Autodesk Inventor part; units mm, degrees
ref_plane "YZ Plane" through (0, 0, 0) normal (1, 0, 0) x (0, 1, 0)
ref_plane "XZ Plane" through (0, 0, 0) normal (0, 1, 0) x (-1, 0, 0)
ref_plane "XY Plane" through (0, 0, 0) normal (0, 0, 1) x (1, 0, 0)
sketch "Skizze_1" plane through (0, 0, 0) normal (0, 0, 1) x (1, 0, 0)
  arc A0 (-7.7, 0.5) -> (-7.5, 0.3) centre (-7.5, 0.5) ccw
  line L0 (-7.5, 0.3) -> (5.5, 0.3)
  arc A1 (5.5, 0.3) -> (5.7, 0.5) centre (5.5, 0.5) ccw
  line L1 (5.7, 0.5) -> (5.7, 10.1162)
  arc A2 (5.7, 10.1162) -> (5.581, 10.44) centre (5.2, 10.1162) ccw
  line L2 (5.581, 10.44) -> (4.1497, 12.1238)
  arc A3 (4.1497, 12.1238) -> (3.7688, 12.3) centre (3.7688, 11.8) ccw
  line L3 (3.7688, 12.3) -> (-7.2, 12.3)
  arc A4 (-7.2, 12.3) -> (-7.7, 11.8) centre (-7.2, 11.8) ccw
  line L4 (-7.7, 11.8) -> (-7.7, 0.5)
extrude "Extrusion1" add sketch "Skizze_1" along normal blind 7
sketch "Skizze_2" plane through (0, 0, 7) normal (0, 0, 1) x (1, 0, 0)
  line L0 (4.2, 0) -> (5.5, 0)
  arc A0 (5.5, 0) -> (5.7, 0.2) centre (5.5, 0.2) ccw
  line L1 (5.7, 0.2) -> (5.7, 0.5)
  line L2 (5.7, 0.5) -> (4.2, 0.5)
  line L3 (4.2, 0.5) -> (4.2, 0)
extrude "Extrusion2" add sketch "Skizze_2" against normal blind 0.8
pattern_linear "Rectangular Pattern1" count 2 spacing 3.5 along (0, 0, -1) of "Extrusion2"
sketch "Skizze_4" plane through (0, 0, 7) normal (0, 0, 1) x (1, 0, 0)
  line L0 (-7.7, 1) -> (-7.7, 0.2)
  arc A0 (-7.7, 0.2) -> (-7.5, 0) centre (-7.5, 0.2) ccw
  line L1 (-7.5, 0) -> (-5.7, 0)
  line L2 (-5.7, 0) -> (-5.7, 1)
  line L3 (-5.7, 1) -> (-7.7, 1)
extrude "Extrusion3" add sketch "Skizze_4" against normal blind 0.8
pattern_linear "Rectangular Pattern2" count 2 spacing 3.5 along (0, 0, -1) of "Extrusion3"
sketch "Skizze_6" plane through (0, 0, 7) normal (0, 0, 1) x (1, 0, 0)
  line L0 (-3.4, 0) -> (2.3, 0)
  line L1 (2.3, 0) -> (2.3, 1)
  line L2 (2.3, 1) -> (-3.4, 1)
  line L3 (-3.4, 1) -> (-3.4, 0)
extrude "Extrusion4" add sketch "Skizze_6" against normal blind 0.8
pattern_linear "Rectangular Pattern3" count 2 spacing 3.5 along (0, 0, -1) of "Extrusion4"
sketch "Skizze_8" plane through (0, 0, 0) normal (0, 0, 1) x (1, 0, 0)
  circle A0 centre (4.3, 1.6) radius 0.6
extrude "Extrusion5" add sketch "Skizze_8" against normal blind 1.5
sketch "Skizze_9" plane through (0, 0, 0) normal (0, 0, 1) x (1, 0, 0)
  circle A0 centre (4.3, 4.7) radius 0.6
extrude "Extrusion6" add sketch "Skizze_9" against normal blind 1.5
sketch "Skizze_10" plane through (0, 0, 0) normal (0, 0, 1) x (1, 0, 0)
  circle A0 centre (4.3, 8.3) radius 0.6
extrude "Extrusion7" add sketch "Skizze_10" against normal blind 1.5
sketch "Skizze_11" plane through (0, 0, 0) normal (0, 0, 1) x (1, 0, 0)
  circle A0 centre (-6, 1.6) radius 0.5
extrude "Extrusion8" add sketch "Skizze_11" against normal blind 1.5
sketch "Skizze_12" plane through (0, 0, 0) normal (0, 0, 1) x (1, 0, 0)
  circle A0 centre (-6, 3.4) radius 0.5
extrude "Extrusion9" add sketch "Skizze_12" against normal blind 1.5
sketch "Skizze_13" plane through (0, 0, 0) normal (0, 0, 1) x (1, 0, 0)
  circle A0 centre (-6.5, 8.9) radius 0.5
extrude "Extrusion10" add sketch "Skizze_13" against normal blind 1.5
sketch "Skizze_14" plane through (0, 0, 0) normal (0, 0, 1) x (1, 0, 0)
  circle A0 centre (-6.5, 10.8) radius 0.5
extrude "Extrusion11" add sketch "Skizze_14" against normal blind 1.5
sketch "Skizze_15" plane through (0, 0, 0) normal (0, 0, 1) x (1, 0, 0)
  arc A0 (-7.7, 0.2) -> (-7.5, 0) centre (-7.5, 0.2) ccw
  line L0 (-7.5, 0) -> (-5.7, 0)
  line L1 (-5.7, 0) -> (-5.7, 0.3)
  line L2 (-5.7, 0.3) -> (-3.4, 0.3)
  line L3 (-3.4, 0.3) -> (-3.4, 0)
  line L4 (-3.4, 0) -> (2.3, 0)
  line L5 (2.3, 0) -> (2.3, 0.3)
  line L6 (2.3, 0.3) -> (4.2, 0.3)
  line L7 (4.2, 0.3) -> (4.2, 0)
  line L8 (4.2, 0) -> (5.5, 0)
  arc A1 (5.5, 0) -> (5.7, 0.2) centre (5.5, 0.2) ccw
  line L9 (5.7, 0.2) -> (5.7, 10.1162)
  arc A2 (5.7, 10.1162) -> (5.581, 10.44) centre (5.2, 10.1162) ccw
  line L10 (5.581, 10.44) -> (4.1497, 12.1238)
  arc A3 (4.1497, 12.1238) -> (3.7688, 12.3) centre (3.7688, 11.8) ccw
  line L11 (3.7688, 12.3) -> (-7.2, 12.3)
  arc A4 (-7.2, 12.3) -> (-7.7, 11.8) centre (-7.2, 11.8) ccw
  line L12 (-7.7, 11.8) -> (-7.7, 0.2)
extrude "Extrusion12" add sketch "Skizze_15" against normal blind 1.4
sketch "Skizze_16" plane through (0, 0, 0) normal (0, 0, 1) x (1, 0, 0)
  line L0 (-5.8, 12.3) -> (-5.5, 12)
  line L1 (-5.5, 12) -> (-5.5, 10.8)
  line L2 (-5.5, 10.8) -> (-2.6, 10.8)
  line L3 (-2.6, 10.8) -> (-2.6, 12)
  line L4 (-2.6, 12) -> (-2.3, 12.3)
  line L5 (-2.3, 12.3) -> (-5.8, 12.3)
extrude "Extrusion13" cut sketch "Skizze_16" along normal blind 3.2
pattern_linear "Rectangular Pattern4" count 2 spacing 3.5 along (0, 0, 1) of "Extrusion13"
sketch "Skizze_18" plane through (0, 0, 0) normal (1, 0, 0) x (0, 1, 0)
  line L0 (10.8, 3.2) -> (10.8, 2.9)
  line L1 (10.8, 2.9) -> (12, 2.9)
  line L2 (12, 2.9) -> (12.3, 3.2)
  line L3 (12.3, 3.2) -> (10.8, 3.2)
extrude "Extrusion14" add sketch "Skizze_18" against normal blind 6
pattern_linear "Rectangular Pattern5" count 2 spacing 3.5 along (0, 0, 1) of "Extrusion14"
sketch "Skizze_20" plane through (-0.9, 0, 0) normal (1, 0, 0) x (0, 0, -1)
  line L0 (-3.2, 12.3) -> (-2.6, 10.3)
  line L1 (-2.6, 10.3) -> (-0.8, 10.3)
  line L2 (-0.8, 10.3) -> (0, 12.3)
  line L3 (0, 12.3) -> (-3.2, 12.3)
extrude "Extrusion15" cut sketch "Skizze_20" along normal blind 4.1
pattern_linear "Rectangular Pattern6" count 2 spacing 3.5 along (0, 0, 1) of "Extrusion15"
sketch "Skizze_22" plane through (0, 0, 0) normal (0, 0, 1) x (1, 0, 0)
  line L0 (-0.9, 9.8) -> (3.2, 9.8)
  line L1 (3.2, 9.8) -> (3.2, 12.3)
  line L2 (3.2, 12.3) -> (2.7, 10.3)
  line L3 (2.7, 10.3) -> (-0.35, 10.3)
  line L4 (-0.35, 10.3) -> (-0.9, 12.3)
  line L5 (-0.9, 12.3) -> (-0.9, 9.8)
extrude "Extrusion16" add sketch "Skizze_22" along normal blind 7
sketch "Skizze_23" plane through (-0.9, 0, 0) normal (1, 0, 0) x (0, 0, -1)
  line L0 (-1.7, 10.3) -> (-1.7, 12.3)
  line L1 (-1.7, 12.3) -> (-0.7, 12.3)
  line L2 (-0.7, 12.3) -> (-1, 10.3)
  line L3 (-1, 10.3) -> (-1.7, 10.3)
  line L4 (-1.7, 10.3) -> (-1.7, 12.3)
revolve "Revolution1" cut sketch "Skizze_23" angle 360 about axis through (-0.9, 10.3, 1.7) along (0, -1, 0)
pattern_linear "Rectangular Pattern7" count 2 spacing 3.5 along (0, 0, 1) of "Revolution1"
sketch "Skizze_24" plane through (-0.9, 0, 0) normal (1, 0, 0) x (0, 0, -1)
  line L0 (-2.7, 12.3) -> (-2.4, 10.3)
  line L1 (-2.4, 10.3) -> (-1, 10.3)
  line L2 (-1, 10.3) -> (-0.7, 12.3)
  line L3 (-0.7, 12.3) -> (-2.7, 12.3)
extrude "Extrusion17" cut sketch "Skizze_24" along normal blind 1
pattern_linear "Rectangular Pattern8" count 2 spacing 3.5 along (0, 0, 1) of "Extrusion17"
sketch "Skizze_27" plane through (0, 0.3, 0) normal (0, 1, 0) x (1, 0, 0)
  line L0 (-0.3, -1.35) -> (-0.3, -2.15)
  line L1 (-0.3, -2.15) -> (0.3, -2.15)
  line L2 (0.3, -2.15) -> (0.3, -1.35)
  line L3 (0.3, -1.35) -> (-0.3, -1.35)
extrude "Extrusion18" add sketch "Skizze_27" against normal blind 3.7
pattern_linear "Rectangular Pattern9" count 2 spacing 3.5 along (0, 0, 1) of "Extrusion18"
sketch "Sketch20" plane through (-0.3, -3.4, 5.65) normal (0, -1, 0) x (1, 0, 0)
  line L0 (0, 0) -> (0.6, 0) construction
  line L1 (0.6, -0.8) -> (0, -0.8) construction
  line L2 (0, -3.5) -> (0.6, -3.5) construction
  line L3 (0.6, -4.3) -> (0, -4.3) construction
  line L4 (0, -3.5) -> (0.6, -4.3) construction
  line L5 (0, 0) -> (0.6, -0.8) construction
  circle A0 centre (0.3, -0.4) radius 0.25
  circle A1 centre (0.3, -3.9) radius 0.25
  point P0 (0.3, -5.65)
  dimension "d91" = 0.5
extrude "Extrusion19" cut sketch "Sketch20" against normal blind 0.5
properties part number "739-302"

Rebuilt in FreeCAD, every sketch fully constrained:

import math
import FreeCAD as App
import Part
import Sketcher
from FreeCAD import Vector
Q = App.Units.Quantity

doc = App.newDocument("Part")
body = doc.addObject("PartDesign::Body", "Body")

# Sketch on XY plane
sketch1 = body.newObject("Sketcher::SketchObject", "Sketch")
sketch1.AttachmentSupport = (doc.getObject("XY_Plane"), [""])
sketch1.MapMode = "FlatFace"
sketch1.addGeometry([
    Part.LineSegment(Vector(-7.7, 11.8, 0), Vector(-7.7, 0.5, 0)),  # 0
    Part.ArcOfCircle(Part.Circle(Vector(-7.5, 0.5, 0), Vector(0, 0, 1), 0.2), math.radians(180), math.radians(270)),  # 1
    Part.LineSegment(Vector(-7.5, 0.3, 0), Vector(5.5, 0.3, 0)),  # 2
    Part.ArcOfCircle(Part.Circle(Vector(5.5, 0.5, 0), Vector(0, 0, 1), 0.2), math.radians(-90), math.radians(0)),  # 3
    Part.LineSegment(Vector(5.7, 0.5, 0), Vector(5.7, 10.1162, 0)),  # 4
    Part.ArcOfCircle(Part.Circle(Vector(5.2, 10.1162, 0), Vector(0, 0, 1), 0.5), math.radians(0), math.radians(40.360171)),  # 5
    Part.LineSegment(Vector(5.581, 10.44, 0), Vector(4.1497, 12.1238, 0)),  # 6
    Part.ArcOfCircle(Part.Circle(Vector(3.7688, 11.8, 0), Vector(0, 0, 1), 0.499931), math.radians(40.367593), math.radians(90)),  # 7
    Part.LineSegment(Vector(3.7688, 12.3, 0), Vector(-7.2, 12.3, 0)),  # 8
    Part.ArcOfCircle(Part.Circle(Vector(-7.2, 11.8, 0), Vector(0, 0, 1), 0.5), math.radians(90), math.radians(180)),  # 9
], False)
sketch1.addConstraint([
    Sketcher.Constraint("Tangent", 0, 2, 1, 1),
    Sketcher.Constraint("Tangent", 1, 2, 2, 1),
    Sketcher.Constraint("Tangent", 2, 2, 3, 1),
    Sketcher.Constraint("Tangent", 3, 2, 4, 1),
    Sketcher.Constraint("Tangent", 4, 2, 5, 1),
    Sketcher.Constraint("Tangent", 5, 2, 6, 1),
    Sketcher.Constraint("Tangent", 6, 2, 7, 1),
    Sketcher.Constraint("Tangent", 7, 2, 8, 1),
    Sketcher.Constraint("Tangent", 8, 2, 9, 1),
    Sketcher.Constraint("Tangent", 9, 2, 0, 1),
    Sketcher.Constraint("Vertical", 0),
    Sketcher.Constraint("Horizontal", 2),
    Sketcher.Constraint("Vertical", 4),
    Sketcher.Constraint("Horizontal", 8),
    Sketcher.Constraint("Equal", 1, 3),
    Sketcher.Constraint("Equal", 5, 7),
    Sketcher.Constraint("Equal", 7, 9),
    Sketcher.Constraint("Radius", 1, Q("0.2 mm")),
    Sketcher.Constraint("Radius", 5, Q("0.5 mm")),
    Sketcher.Constraint("DistanceX", 2, 1, 2, 2, Q("13 mm")),
    Sketcher.Constraint("DistanceY", 0, 2, 0, 1, Q("11.3 mm")),
    Sketcher.Constraint("DistanceX", 1, 3, -1, 1, Q("7.5 mm")),
    Sketcher.Constraint("DistanceY", -1, 1, 1, 3, Q("0.5 mm")),
    Sketcher.Constraint("Distance", 6, Q("2.21 mm")),
    Sketcher.Constraint("DistanceY", -1, 1, 5, 2, Q("10.44 mm")),
])
pad1 = body.newObject("PartDesign::Pad", "Pad")
pad1.Profile = sketch1
pad1.Length = 7

# Sketch on XY plane
sketch2 = body.newObject("Sketcher::SketchObject", "Sketch001")
sketch2.AttachmentSupport = (doc.getObject("XY_Plane"), [""])
sketch2.MapMode = "FlatFace"
sketch2.AttachmentOffset = App.Placement(Vector(0, 0, 7), App.Rotation())
sketch2.addGeometry([
    Part.LineSegment(Vector(4.2, 0.5, 0), Vector(4.2, 0, 0)),  # 0
    Part.LineSegment(Vector(4.2, 0, 0), Vector(5.5, 0, 0)),  # 1
    Part.ArcOfCircle(Part.Circle(Vector(5.5, 0.2, 0), Vector(0, 0, 1), 0.2), math.radians(-90), math.radians(0)),  # 2
    Part.LineSegment(Vector(5.7, 0.2, 0), Vector(5.7, 0.5, 0)),  # 3
    Part.LineSegment(Vector(5.7, 0.5, 0), Vector(4.2, 0.5, 0)),  # 4
], False)
sketch2.addConstraint([
    Sketcher.Constraint("Coincident", 0, 2, 1, 1),
    Sketcher.Constraint("Tangent", 1, 2, 2, 1),
    Sketcher.Constraint("Tangent", 2, 2, 3, 1),
    Sketcher.Constraint("Coincident", 3, 2, 4, 1),
    Sketcher.Constraint("Coincident", 4, 2, 0, 1),
    Sketcher.Constraint("Vertical", 0),
    Sketcher.Constraint("Horizontal", 1),
    Sketcher.Constraint("Vertical", 3),
    Sketcher.Constraint("Horizontal", 4),
    Sketcher.Constraint("PointOnObject", 0, 2, -1),
    Sketcher.Constraint("Radius", 2, Q("0.2 mm")),
    Sketcher.Constraint("DistanceX", 1, 1, 1, 2, Q("1.3 mm")),
    Sketcher.Constraint("DistanceY", 0, 2, 0, 1, Q("0.5 mm")),
    Sketcher.Constraint("DistanceX", -1, 1, 2, 3, Q("5.5 mm")),
])
pad2 = body.newObject("PartDesign::Pad", "Pad001")
pad2.Profile = sketch2
pad2.Length = 0.8
pad2.Reversed = True
doc.recompute()

linearpattern = body.newObject("PartDesign::LinearPattern", "LinearPattern")
linearpattern.Originals = [pad2]
linearpattern.Direction = (doc.getObject("Z_Axis"), [""])
linearpattern.Mode = "offset"
linearpattern.Offset = 3.5
linearpattern.Occurrences = 2
linearpattern.Reversed = True
body.Tip = linearpattern

# Sketch on XY plane
sketch3 = body.newObject("Sketcher::SketchObject", "Sketch002")
sketch3.AttachmentSupport = (doc.getObject("XY_Plane"), [""])
sketch3.MapMode = "FlatFace"
sketch3.AttachmentOffset = App.Placement(Vector(0, 0, 7), App.Rotation())
sketch3.addGeometry([
    Part.LineSegment(Vector(-5.7, 1, 0), Vector(-7.7, 1, 0)),  # 0
    Part.LineSegment(Vector(-7.7, 1, 0), Vector(-7.7, 0.2, 0)),  # 1
    Part.ArcOfCircle(Part.Circle(Vector(-7.5, 0.2, 0), Vector(0, 0, 1), 0.2), math.radians(180), math.radians(270)),  # 2
    Part.LineSegment(Vector(-7.5, 0, 0), Vector(-5.7, 0, 0)),  # 3
    Part.LineSegment(Vector(-5.7, 0, 0), Vector(-5.7, 1, 0)),  # 4
], False)
sketch3.addConstraint([
    Sketcher.Constraint("Coincident", 0, 2, 1, 1),
    Sketcher.Constraint("Tangent", 1, 2, 2, 1),
    Sketcher.Constraint("Tangent", 2, 2, 3, 1),
    Sketcher.Constraint("Coincident", 3, 2, 4, 1),
    Sketcher.Constraint("Coincident", 4, 2, 0, 1),
    Sketcher.Constraint("Horizontal", 0),
    Sketcher.Constraint("Vertical", 1),
    Sketcher.Constraint("Horizontal", 3),
    Sketcher.Constraint("Vertical", 4),
    Sketcher.Constraint("PointOnObject", 2, 2, -1),
    Sketcher.Constraint("Radius", 2, Q("0.2 mm")),
    Sketcher.Constraint("DistanceX", 0, 2, 0, 1, Q("2 mm")),
    Sketcher.Constraint("DistanceY", 4, 1, 4, 2, Q("1 mm")),
    Sketcher.Constraint("DistanceX", 2, 3, -1, 1, Q("7.5 mm")),
])
pad3 = body.newObject("PartDesign::Pad", "Pad002")
pad3.Profile = sketch3
pad3.Length = 0.8
pad3.Reversed = True
doc.recompute()

linearpattern2 = body.newObject("PartDesign::LinearPattern", "LinearPattern001")
linearpattern2.Originals = [pad3]
linearpattern2.Direction = (doc.getObject("Z_Axis"), [""])
linearpattern2.Mode = "offset"
linearpattern2.Offset = 3.5
linearpattern2.Occurrences = 2
linearpattern2.Reversed = True
body.Tip = linearpattern2

# Sketch on XY plane
sketch4 = body.newObject("Sketcher::SketchObject", "Sketch003")
sketch4.AttachmentSupport = (doc.getObject("XY_Plane"), [""])
sketch4.MapMode = "FlatFace"
sketch4.AttachmentOffset = App.Placement(Vector(0, 0, 7), App.Rotation())
sketch4.addGeometry([
    Part.LineSegment(Vector(-3.4, 1, 0), Vector(-3.4, 0, 0)),
    Part.LineSegment(Vector(-3.4, 0, 0), Vector(2.3, 0, 0)),
    Part.LineSegment(Vector(2.3, 0, 0), Vector(2.3, 1, 0)),
    Part.LineSegment(Vector(2.3, 1, 0), Vector(-3.4, 1, 0)),
], False)
sketch4.addConstraint([
    Sketcher.Constraint("Coincident", 0, 2, 1, 1),
    Sketcher.Constraint("Coincident", 1, 2, 2, 1),
    Sketcher.Constraint("Coincident", 2, 2, 3, 1),
    Sketcher.Constraint("Coincident", 3, 2, 0, 1),
    Sketcher.Constraint("Vertical", 0),
    Sketcher.Constraint("Horizontal", 1),
    Sketcher.Constraint("Vertical", 2),
    Sketcher.Constraint("Horizontal", 3),
    Sketcher.Constraint("PointOnObject", 0, 2, -1),
    Sketcher.Constraint("DistanceY", 0, 2, 0, 1, Q("1 mm")),
    Sketcher.Constraint("DistanceX", 1, 1, 1, 2, Q("5.7 mm")),
    Sketcher.Constraint("DistanceX", 0, 2, -1, 1, Q("3.4 mm")),
])
pad4 = body.newObject("PartDesign::Pad", "Pad003")
pad4.Profile = sketch4
pad4.Length = 0.8
pad4.Reversed = True
doc.recompute()

linearpattern3 = body.newObject("PartDesign::LinearPattern", "LinearPattern002")
linearpattern3.Originals = [pad4]
linearpattern3.Direction = (doc.getObject("Z_Axis"), [""])
linearpattern3.Mode = "offset"
linearpattern3.Offset = 3.5
linearpattern3.Occurrences = 2
linearpattern3.Reversed = True
body.Tip = linearpattern3

# Sketch on XY plane
sketch5 = body.newObject("Sketcher::SketchObject", "Sketch004")
sketch5.AttachmentSupport = (doc.getObject("XY_Plane"), [""])
sketch5.MapMode = "FlatFace"
sketch5.addGeometry(Part.Circle(Vector(4.3, 1.6, 0), Vector(0, 0, 1), 0.6), False)
sketch5.addConstraint([
    Sketcher.Constraint("Diameter", 0, Q("1.2 mm")),
    Sketcher.Constraint("DistanceX", -1, 1, 0, 3, Q("4.3 mm")),
    Sketcher.Constraint("DistanceY", -1, 1, 0, 3, Q("1.6 mm")),
])
pad5 = body.newObject("PartDesign::Pad", "Pad004")
pad5.Profile = sketch5
pad5.Length = 1.5
pad5.Reversed = True

# Sketch on XY plane
sketch6 = body.newObject("Sketcher::SketchObject", "Sketch005")
sketch6.AttachmentSupport = (doc.getObject("XY_Plane"), [""])
sketch6.MapMode = "FlatFace"
sketch6.addGeometry(Part.Circle(Vector(4.3, 4.7, 0), Vector(0, 0, 1), 0.6), False)
sketch6.addConstraint([
    Sketcher.Constraint("Diameter", 0, Q("1.2 mm")),
    Sketcher.Constraint("DistanceX", -1, 1, 0, 3, Q("4.3 mm")),
    Sketcher.Constraint("DistanceY", -1, 1, 0, 3, Q("4.7 mm")),
])
pad6 = body.newObject("PartDesign::Pad", "Pad005")
pad6.Profile = sketch6
pad6.Length = 1.5
pad6.Reversed = True

# Sketch on XY plane
sketch7 = body.newObject("Sketcher::SketchObject", "Sketch006")
sketch7.AttachmentSupport = (doc.getObject("XY_Plane"), [""])
sketch7.MapMode = "FlatFace"
sketch7.addGeometry(Part.Circle(Vector(4.3, 8.3, 0), Vector(0, 0, 1), 0.6), False)
sketch7.addConstraint([
    Sketcher.Constraint("Diameter", 0, Q("1.2 mm")),
    Sketcher.Constraint("DistanceX", -1, 1, 0, 3, Q("4.3 mm")),
    Sketcher.Constraint("DistanceY", -1, 1, 0, 3, Q("8.3 mm")),
])
pad7 = body.newObject("PartDesign::Pad", "Pad006")
pad7.Profile = sketch7
pad7.Length = 1.5
pad7.Reversed = True

# Sketch on XY plane
sketch8 = body.newObject("Sketcher::SketchObject", "Sketch007")
sketch8.AttachmentSupport = (doc.getObject("XY_Plane"), [""])
sketch8.MapMode = "FlatFace"
sketch8.addGeometry(Part.Circle(Vector(-6, 1.6, 0), Vector(0, 0, 1), 0.5), False)
sketch8.addConstraint([
    Sketcher.Constraint("Diameter", 0, Q("1 mm")),
    Sketcher.Constraint("DistanceX", 0, 3, -1, 1, Q("6 mm")),
    Sketcher.Constraint("DistanceY", -1, 1, 0, 3, Q("1.6 mm")),
])
pad8 = body.newObject("PartDesign::Pad", "Pad007")
pad8.Profile = sketch8
pad8.Length = 1.5
pad8.Reversed = True

# Sketch on XY plane
sketch9 = body.newObject("Sketcher::SketchObject", "Sketch008")
sketch9.AttachmentSupport = (doc.getObject("XY_Plane"), [""])
sketch9.MapMode = "FlatFace"
sketch9.addGeometry(Part.Circle(Vector(-6, 3.4, 0), Vector(0, 0, 1), 0.5), False)
sketch9.addConstraint([
    Sketcher.Constraint("Diameter", 0, Q("1 mm")),
    Sketcher.Constraint("DistanceX", 0, 3, -1, 1, Q("6 mm")),
    Sketcher.Constraint("DistanceY", -1, 1, 0, 3, Q("3.4 mm")),
])
pad9 = body.newObject("PartDesign::Pad", "Pad008")
pad9.Profile = sketch9
pad9.Length = 1.5
pad9.Reversed = True

# Sketch on XY plane
sketch10 = body.newObject("Sketcher::SketchObject", "Sketch009")
sketch10.AttachmentSupport = (doc.getObject("XY_Plane"), [""])
sketch10.MapMode = "FlatFace"
sketch10.addGeometry(Part.Circle(Vector(-6.5, 8.9, 0), Vector(0, 0, 1), 0.5), False)
sketch10.addConstraint([
    Sketcher.Constraint("Diameter", 0, Q("1 mm")),
    Sketcher.Constraint("DistanceX", 0, 3, -1, 1, Q("6.5 mm")),
    Sketcher.Constraint("DistanceY", -1, 1, 0, 3, Q("8.9 mm")),
])
pad10 = body.newObject("PartDesign::Pad", "Pad009")
pad10.Profile = sketch10
pad10.Length = 1.5
pad10.Reversed = True

# Sketch on XY plane
sketch11 = body.newObject("Sketcher::SketchObject", "Sketch010")
sketch11.AttachmentSupport = (doc.getObject("XY_Plane"), [""])
sketch11.MapMode = "FlatFace"
sketch11.addGeometry(Part.Circle(Vector(-6.5, 10.8, 0), Vector(0, 0, 1), 0.5), False)
sketch11.addConstraint([
    Sketcher.Constraint("Diameter", 0, Q("1 mm")),
    Sketcher.Constraint("DistanceX", 0, 3, -1, 1, Q("6.5 mm")),
    Sketcher.Constraint("DistanceY", -1, 1, 0, 3, Q("10.8 mm")),
])
pad11 = body.newObject("PartDesign::Pad", "Pad010")
pad11.Profile = sketch11
pad11.Length = 1.5
pad11.Reversed = True

# Sketch on XY plane
sketch12 = body.newObject("Sketcher::SketchObject", "Sketch011")
sketch12.AttachmentSupport = (doc.getObject("XY_Plane"), [""])
sketch12.MapMode = "FlatFace"
sketch12.addGeometry([
    Part.LineSegment(Vector(-7.7, 11.8, 0), Vector(-7.7, 0.2, 0)),  # 0
    Part.ArcOfCircle(Part.Circle(Vector(-7.5, 0.2, 0), Vector(0, 0, 1), 0.2), math.radians(180), math.radians(270)),  # 1
    Part.LineSegment(Vector(-7.5, 0, 0), Vector(-5.7, 0, 0)),  # 2
    Part.LineSegment(Vector(-5.7, 0, 0), Vector(-5.7, 0.3, 0)),  # 3
    Part.LineSegment(Vector(-5.7, 0.3, 0), Vector(-3.4, 0.3, 0)),  # 4
    Part.LineSegment(Vector(-3.4, 0.3, 0), Vector(-3.4, 0, 0)),  # 5
    Part.LineSegment(Vector(-3.4, 0, 0), Vector(2.3, 0, 0)),  # 6
    Part.LineSegment(Vector(2.3, 0, 0), Vector(2.3, 0.3, 0)),  # 7
    Part.LineSegment(Vector(2.3, 0.3, 0), Vector(4.2, 0.3, 0)),  # 8
    Part.LineSegment(Vector(4.2, 0.3, 0), Vector(4.2, 0, 0)),  # 9
    Part.LineSegment(Vector(4.2, 0, 0), Vector(5.5, 0, 0)),  # 10
    Part.ArcOfCircle(Part.Circle(Vector(5.5, 0.2, 0), Vector(0, 0, 1), 0.2), math.radians(-90), math.radians(0)),  # 11
    Part.LineSegment(Vector(5.7, 0.2, 0), Vector(5.7, 10.1162, 0)),  # 12
    Part.ArcOfCircle(Part.Circle(Vector(5.2, 10.1162, 0), Vector(0, 0, 1), 0.5), math.radians(0), math.radians(40.360171)),  # 13
    Part.LineSegment(Vector(5.581, 10.44, 0), Vector(4.1497, 12.1238, 0)),  # 14
    Part.ArcOfCircle(Part.Circle(Vector(3.7688, 11.8, 0), Vector(0, 0, 1), 0.499931), math.radians(40.367593), math.radians(90)),  # 15
    Part.LineSegment(Vector(3.7688, 12.3, 0), Vector(-7.2, 12.3, 0)),  # 16
    Part.ArcOfCircle(Part.Circle(Vector(-7.2, 11.8, 0), Vector(0, 0, 1), 0.5), math.radians(90), math.radians(180)),  # 17
], False)
sketch12.addConstraint([
    Sketcher.Constraint("Tangent", 0, 2, 1, 1),
    Sketcher.Constraint("Tangent", 1, 2, 2, 1),
    Sketcher.Constraint("Coincident", 2, 2, 3, 1),
    Sketcher.Constraint("Coincident", 3, 2, 4, 1),
    Sketcher.Constraint("Coincident", 4, 2, 5, 1),
    Sketcher.Constraint("Coincident", 5, 2, 6, 1),
    Sketcher.Constraint("Coincident", 6, 2, 7, 1),
    Sketcher.Constraint("Coincident", 7, 2, 8, 1),
    Sketcher.Constraint("Coincident", 8, 2, 9, 1),
    Sketcher.Constraint("Coincident", 9, 2, 10, 1),
    Sketcher.Constraint("Tangent", 10, 2, 11, 1),
    Sketcher.Constraint("Tangent", 11, 2, 12, 1),
    Sketcher.Constraint("Tangent", 12, 2, 13, 1),
    Sketcher.Constraint("Tangent", 13, 2, 14, 1),
    Sketcher.Constraint("Tangent", 14, 2, 15, 1),
    Sketcher.Constraint("Tangent", 15, 2, 16, 1),
    Sketcher.Constraint("Tangent", 16, 2, 17, 1),
    Sketcher.Constraint("Tangent", 17, 2, 0, 1),
    Sketcher.Constraint("Vertical", 0),
    Sketcher.Constraint("Horizontal", 2),
    Sketcher.Constraint("Vertical", 3),
    Sketcher.Constraint("Horizontal", 4),
    Sketcher.Constraint("Vertical", 5),
    Sketcher.Constraint("Horizontal", 6),
    Sketcher.Constraint("Vertical", 7),
    Sketcher.Constraint("Horizontal", 8),
    Sketcher.Constraint("Vertical", 9),
    Sketcher.Constraint("Horizontal", 10),
    Sketcher.Constraint("Vertical", 12),
    Sketcher.Constraint("Horizontal", 16),
    Sketcher.Constraint("Equal", 1, 11),
    Sketcher.Constraint("Equal", 13, 15),
    Sketcher.Constraint("Equal", 15, 17),
    Sketcher.Constraint("PointOnObject", 1, 2, -1),
    Sketcher.Constraint("PointOnObject", 5, 2, -1),
    Sketcher.Constraint("PointOnObject", 9, 2, -1),
    Sketcher.Constraint("Horizontal", 4, 2, 7, 2),
    Sketcher.Constraint("Radius", 1, Q("0.2 mm")),
    Sketcher.Constraint("Radius", 13, Q("0.5 mm")),
    Sketcher.Constraint("DistanceX", 2, 1, 2, 2, Q("1.8 mm")),
    Sketcher.Constraint("DistanceX", 4, 1, 4, 2, Q("2.3 mm")),
    Sketcher.Constraint("DistanceX", 6, 1, 6, 2, Q("5.7 mm")),
    Sketcher.Constraint("DistanceX", 8, 1, 8, 2, Q("1.9 mm")),
    Sketcher.Constraint("DistanceX", 10, 1, 10, 2, Q("1.3 mm")),
    Sketcher.Constraint("DistanceY", 0, 2, 0, 1, Q("11.6 mm")),
    Sketcher.Constraint("DistanceY", 3, 1, 3, 2, Q("0.3 mm")),
    Sketcher.Constraint("DistanceX", 1, 3, -1, 1, Q("7.5 mm")),
    Sketcher.Constraint("Distance", 14, Q("2.21 mm")),
    Sketcher.Constraint("DistanceY", -1, 1, 13, 2, Q("10.44 mm")),
])
pad12 = body.newObject("PartDesign::Pad", "Pad011")
pad12.Profile = sketch12
pad12.Length = 1.4
pad12.Reversed = True

# Sketch on XY plane
sketch13 = body.newObject("Sketcher::SketchObject", "Sketch012")
sketch13.AttachmentSupport = (doc.getObject("XY_Plane"), [""])
sketch13.MapMode = "FlatFace"
sketch13.addGeometry([
    Part.LineSegment(Vector(-2.3, 12.3, 0), Vector(-5.8, 12.3, 0)),  # 0
    Part.LineSegment(Vector(-5.8, 12.3, 0), Vector(-5.5, 12, 0)),  # 1
    Part.LineSegment(Vector(-5.5, 12, 0), Vector(-5.5, 10.8, 0)),  # 2
    Part.LineSegment(Vector(-5.5, 10.8, 0), Vector(-2.6, 10.8, 0)),  # 3
    Part.LineSegment(Vector(-2.6, 10.8, 0), Vector(-2.6, 12, 0)),  # 4
    Part.LineSegment(Vector(-2.6, 12, 0), Vector(-2.3, 12.3, 0)),  # 5
], False)
sketch13.addConstraint([
    Sketcher.Constraint("Coincident", 0, 2, 1, 1),
    Sketcher.Constraint("Coincident", 1, 2, 2, 1),
    Sketcher.Constraint("Coincident", 2, 2, 3, 1),
    Sketcher.Constraint("Coincident", 3, 2, 4, 1),
    Sketcher.Constraint("Coincident", 4, 2, 5, 1),
    Sketcher.Constraint("Coincident", 5, 2, 0, 1),
    Sketcher.Constraint("Horizontal", 0),
    Sketcher.Constraint("Vertical", 2),
    Sketcher.Constraint("Horizontal", 3),
    Sketcher.Constraint("Vertical", 4),
    Sketcher.Constraint("Perpendicular", 1, 5),
    Sketcher.Constraint("Horizontal", 1, 2, 4, 2),
    Sketcher.Constraint("Equal", 1, 5),
    Sketcher.Constraint("DistanceX", 0, 2, 0, 1, Q("3.5 mm")),
    Sketcher.Constraint("DistanceX", 3, 1, 3, 2, Q("2.9 mm")),
    Sketcher.Constraint("DistanceY", 2, 2, 2, 1, Q("1.2 mm")),
    Sketcher.Constraint("DistanceY", -1, 1, 1, 2, Q("12 mm")),
    Sketcher.Constraint("DistanceX", 0, 2, -1, 1, Q("5.8 mm")),
])
pocket1 = body.newObject("PartDesign::Pocket", "Pocket")
pocket1.Profile = sketch13
pocket1.Length = 3.2
pocket1.Reversed = True
doc.recompute()

linearpattern4 = body.newObject("PartDesign::LinearPattern", "LinearPattern003")
linearpattern4.Originals = [pocket1]
linearpattern4.Direction = (doc.getObject("Z_Axis"), [""])
linearpattern4.Mode = "offset"
linearpattern4.Offset = 3.5
linearpattern4.Occurrences = 2
body.Tip = linearpattern4

# Sketch on YZ plane
sketch14 = body.newObject("Sketcher::SketchObject", "Sketch013")
sketch14.AttachmentSupport = (doc.getObject("YZ_Plane"), [""])
sketch14.MapMode = "FlatFace"
sketch14.addGeometry([
    Part.LineSegment(Vector(12.3, 3.2, 0), Vector(10.8, 3.2, 0)),
    Part.LineSegment(Vector(10.8, 3.2, 0), Vector(10.8, 2.9, 0)),
    Part.LineSegment(Vector(10.8, 2.9, 0), Vector(12, 2.9, 0)),
    Part.LineSegment(Vector(12, 2.9, 0), Vector(12.3, 3.2, 0)),
], False)
sketch14.addConstraint([
    Sketcher.Constraint("Coincident", 0, 2, 1, 1),
    Sketcher.Constraint("Coincident", 1, 2, 2, 1),
    Sketcher.Constraint("Coincident", 2, 2, 3, 1),
    Sketcher.Constraint("Coincident", 3, 2, 0, 1),
    Sketcher.Constraint("Horizontal", 0),
    Sketcher.Constraint("Vertical", 1),
    Sketcher.Constraint("Horizontal", 2),
    Sketcher.Constraint("Angle", 3, Q("45 deg")),
    Sketcher.Constraint("DistanceX", 0, 2, 0, 1, Q("1.5 mm")),
    Sketcher.Constraint("DistanceX", 2, 1, 2, 2, Q("1.2 mm")),
    Sketcher.Constraint("DistanceX", -1, 1, 2, 2, Q("12 mm")),
    Sketcher.Constraint("DistanceY", -1, 1, 0, 2, Q("3.2 mm")),
])
pad13 = body.newObject("PartDesign::Pad", "Pad012")
pad13.Profile = sketch14
pad13.Length = 6
pad13.Reversed = True
doc.recompute()

linearpattern5 = body.newObject("PartDesign::LinearPattern", "LinearPattern004")
linearpattern5.Originals = [pad13]
linearpattern5.Direction = (doc.getObject("Z_Axis"), [""])
linearpattern5.Mode = "offset"
linearpattern5.Offset = 3.5
linearpattern5.Occurrences = 2
body.Tip = linearpattern5

# Sketch on YZ plane
sketch15 = body.newObject("Sketcher::SketchObject", "Sketch014")
sketch15.AttachmentSupport = (doc.getObject("YZ_Plane"), [""])
sketch15.MapMode = "FlatFace"
sketch15.AttachmentOffset = App.Placement(Vector(0, 0, -0.9), App.Rotation())
sketch15.addGeometry([
    Part.LineSegment(Vector(12.3, 0, 0), Vector(12.3, 3.2, 0)),
    Part.LineSegment(Vector(12.3, 3.2, 0), Vector(10.3, 2.6, 0)),
    Part.LineSegment(Vector(10.3, 2.6, 0), Vector(10.3, 0.8, 0)),
    Part.LineSegment(Vector(10.3, 0.8, 0), Vector(12.3, 0, 0)),
], False)
sketch15.addConstraint([
    Sketcher.Constraint("Coincident", 0, 2, 1, 1),
    Sketcher.Constraint("Coincident", 1, 2, 2, 1),
    Sketcher.Constraint("Coincident", 2, 2, 3, 1),
    Sketcher.Constraint("Coincident", 3, 2, 0, 1),
    Sketcher.Constraint("Vertical", 0),
    Sketcher.Constraint("Vertical", 2),
    Sketcher.Constraint("PointOnObject", 3, 2, -1),
    Sketcher.Constraint("DistanceY", 0, 1, 0, 2, Q("3.2 mm")),
    Sketcher.Constraint("DistanceY", 2, 2, 2, 1, Q("1.8 mm")),
    Sketcher.Constraint("Angle", 1, Q("-163.3008 deg")),
    Sketcher.Constraint("DistanceX", 1, 2, 0, 2, Q("2 mm")),
    Sketcher.Constraint("DistanceX", -1, 1, 0, 2, Q("12.3 mm")),
])
pocket2 = body.newObject("PartDesign::Pocket", "Pocket001")
pocket2.Profile = sketch15
pocket2.Length = 4.1
pocket2.Reversed = True
doc.recompute()

linearpattern6 = body.newObject("PartDesign::LinearPattern", "LinearPattern005")
linearpattern6.Originals = [pocket2]
linearpattern6.Direction = (doc.getObject("Z_Axis"), [""])
linearpattern6.Mode = "offset"
linearpattern6.Offset = 3.5
linearpattern6.Occurrences = 2
body.Tip = linearpattern6

# Sketch on XY plane
sketch16 = body.newObject("Sketcher::SketchObject", "Sketch015")
sketch16.AttachmentSupport = (doc.getObject("XY_Plane"), [""])
sketch16.MapMode = "FlatFace"
sketch16.addGeometry([
    Part.LineSegment(Vector(-0.9, 12.3, 0), Vector(-0.9, 9.8, 0)),  # 0
    Part.LineSegment(Vector(-0.9, 9.8, 0), Vector(3.2, 9.8, 0)),  # 1
    Part.LineSegment(Vector(3.2, 9.8, 0), Vector(3.2, 12.3, 0)),  # 2
    Part.LineSegment(Vector(3.2, 12.3, 0), Vector(2.7, 10.3, 0)),  # 3
    Part.LineSegment(Vector(2.7, 10.3, 0), Vector(-0.35, 10.3, 0)),  # 4
    Part.LineSegment(Vector(-0.35, 10.3, 0), Vector(-0.9, 12.3, 0)),  # 5
], False)
sketch16.addConstraint([
    Sketcher.Constraint("Coincident", 0, 2, 1, 1),
    Sketcher.Constraint("Coincident", 1, 2, 2, 1),
    Sketcher.Constraint("Coincident", 2, 2, 3, 1),
    Sketcher.Constraint("Coincident", 3, 2, 4, 1),
    Sketcher.Constraint("Coincident", 4, 2, 5, 1),
    Sketcher.Constraint("Coincident", 5, 2, 0, 1),
    Sketcher.Constraint("Vertical", 0),
    Sketcher.Constraint("Horizontal", 1),
    Sketcher.Constraint("Vertical", 2),
    Sketcher.Constraint("Horizontal", 4),
    Sketcher.Constraint("Horizontal", 2, 2, 5, 2),
    Sketcher.Constraint("DistanceX", 1, 1, 1, 2, Q("4.1 mm")),
    Sketcher.Constraint("DistanceY", 0, 2, 0, 1, Q("2.5 mm")),
    Sketcher.Constraint("DistanceY", 3, 2, 2, 2, Q("2 mm")),
    Sketcher.Constraint("DistanceX", 4, 2, 4, 1, Q("3.05 mm")),
    Sketcher.Constraint("DistanceX", 0, 2, -1, 1, Q("0.9 mm")),
    Sketcher.Constraint("DistanceY", -1, 1, 0, 2, Q("9.8 mm")),
    Sketcher.Constraint("DistanceX", -1, 1, 3, 2, Q("2.7 mm")),
])
pad14 = body.newObject("PartDesign::Pad", "Pad013")
pad14.Profile = sketch16
pad14.Length = 7

# Sketch on YZ plane
sketch17 = body.newObject("Sketcher::SketchObject", "Sketch016")
sketch17.AttachmentSupport = (doc.getObject("YZ_Plane"), [""])
sketch17.MapMode = "FlatFace"
sketch17.AttachmentOffset = App.Placement(Vector(0, 0, -0.9), App.Rotation())
sketch17.addGeometry([
    Part.LineSegment(Vector(12.3, 1.7, 0), Vector(10.3, 1.7, 0)),
    Part.LineSegment(Vector(10.3, 1.7, 0), Vector(10.3, 1, 0)),
    Part.LineSegment(Vector(10.3, 1, 0), Vector(12.3, 0.7, 0)),
    Part.LineSegment(Vector(12.3, 0.7, 0), Vector(12.3, 1.7, 0)),
], False)
sketch17.addGeometry(Part.LineSegment(Vector(12.3, 1.7, 0), Vector(10.3, 1.7, 0)), True)  # axis
sketch17.addConstraint([
    Sketcher.Constraint("Coincident", 0, 2, 1, 1),
    Sketcher.Constraint("Coincident", 1, 2, 2, 1),
    Sketcher.Constraint("Coincident", 2, 2, 3, 1),
    Sketcher.Constraint("Coincident", 3, 2, 0, 1),
    Sketcher.Constraint("Horizontal", 0),
    Sketcher.Constraint("Vertical", 1),
    Sketcher.Constraint("Vertical", 3),
    Sketcher.Constraint("Horizontal", 4),
    Sketcher.Constraint("Coincident", 4, 1, 3, 2),
    Sketcher.Constraint("Vertical", 1, 2, 4, 2),
    Sketcher.Constraint("DistanceX", 0, 2, 0, 1, Q("2 mm")),
    Sketcher.Constraint("DistanceY", 3, 1, 3, 2, Q("1 mm")),
    Sketcher.Constraint("DistanceY", 1, 2, 1, 1, Q("0.7 mm")),
    Sketcher.Constraint("DistanceY", -1, 1, 1, 2, Q("1 mm")),
    Sketcher.Constraint("DistanceX", -1, 1, 0, 2, Q("10.3 mm")),
])
groove = body.newObject("PartDesign::Groove", "Groove")
groove.Profile = sketch17
groove.ReferenceAxis = (sketch17, ["Axis0"])
groove.Angle = 360
doc.recompute()

linearpattern7 = body.newObject("PartDesign::LinearPattern", "LinearPattern006")
linearpattern7.Originals = [groove]
linearpattern7.Direction = (doc.getObject("Z_Axis"), [""])
linearpattern7.Mode = "offset"
linearpattern7.Offset = 3.5
linearpattern7.Occurrences = 2
body.Tip = linearpattern7

# Sketch on YZ plane
sketch18 = body.newObject("Sketcher::SketchObject", "Sketch017")
sketch18.AttachmentSupport = (doc.getObject("YZ_Plane"), [""])
sketch18.MapMode = "FlatFace"
sketch18.AttachmentOffset = App.Placement(Vector(0, 0, -0.9), App.Rotation())
sketch18.addGeometry([
    Part.LineSegment(Vector(12.3, 0.7, 0), Vector(12.3, 2.7, 0)),
    Part.LineSegment(Vector(12.3, 2.7, 0), Vector(10.3, 2.4, 0)),
    Part.LineSegment(Vector(10.3, 2.4, 0), Vector(10.3, 1, 0)),
    Part.LineSegment(Vector(10.3, 1, 0), Vector(12.3, 0.7, 0)),
], False)
sketch18.addConstraint([
    Sketcher.Constraint("Coincident", 0, 2, 1, 1),
    Sketcher.Constraint("Coincident", 1, 2, 2, 1),
    Sketcher.Constraint("Coincident", 2, 2, 3, 1),
    Sketcher.Constraint("Coincident", 3, 2, 0, 1),
    Sketcher.Constraint("Vertical", 0),
    Sketcher.Constraint("Vertical", 2),
    Sketcher.Constraint("Equal", 1, 3),
    Sketcher.Constraint("DistanceY", 0, 1, 0, 2, Q("2 mm")),
    Sketcher.Constraint("DistanceY", 2, 2, 2, 1, Q("1.4 mm")),
    Sketcher.Constraint("DistanceY", -1, 1, 2, 2, Q("1 mm")),
    Sketcher.Constraint("DistanceX", 1, 2, 0, 2, Q("2 mm")),
    Sketcher.Constraint("DistanceX", -1, 1, 0, 2, Q("12.3 mm")),
])
pocket3 = body.newObject("PartDesign::Pocket", "Pocket002")
pocket3.Profile = sketch18
pocket3.Length = 1
pocket3.Reversed = True
doc.recompute()

linearpattern8 = body.newObject("PartDesign::LinearPattern", "LinearPattern007")
linearpattern8.Originals = [pocket3]
linearpattern8.Direction = (doc.getObject("Z_Axis"), [""])
linearpattern8.Mode = "offset"
linearpattern8.Offset = 3.5
linearpattern8.Occurrences = 2
body.Tip = linearpattern8

# Sketch on XZ plane
sketch19 = body.newObject("Sketcher::SketchObject", "Sketch018")
sketch19.AttachmentSupport = (doc.getObject("XZ_Plane"), [""])
sketch19.MapMode = "FlatFace"
sketch19.AttachmentOffset = App.Placement(Vector(0, 0, -0.3), App.Rotation())
sketch19.addGeometry([
    Part.LineSegment(Vector(0.3, 1.35, 0), Vector(-0.3, 1.35, 0)),
    Part.LineSegment(Vector(-0.3, 1.35, 0), Vector(-0.3, 2.15, 0)),
    Part.LineSegment(Vector(-0.3, 2.15, 0), Vector(0.3, 2.15, 0)),
    Part.LineSegment(Vector(0.3, 2.15, 0), Vector(0.3, 1.35, 0)),
], False)
sketch19.addConstraint([
    Sketcher.Constraint("Coincident", 0, 2, 1, 1),
    Sketcher.Constraint("Coincident", 1, 2, 2, 1),
    Sketcher.Constraint("Coincident", 2, 2, 3, 1),
    Sketcher.Constraint("Coincident", 3, 2, 0, 1),
    Sketcher.Constraint("Horizontal", 0),
    Sketcher.Constraint("Vertical", 1),
    Sketcher.Constraint("Horizontal", 2),
    Sketcher.Constraint("Vertical", 3),
    Sketcher.Constraint("DistanceX", 0, 2, 0, 1, Q("0.6 mm")),
    Sketcher.Constraint("DistanceY", 1, 1, 1, 2, Q("0.8 mm")),
    Sketcher.Constraint("DistanceX", 0, 2, -1, 1, Q("0.3 mm")),
    Sketcher.Constraint("DistanceY", -1, 1, 0, 2, Q("1.35 mm")),
])
pad15 = body.newObject("PartDesign::Pad", "Pad014")
pad15.Profile = sketch19
pad15.Length = 3.7
doc.recompute()

linearpattern9 = body.newObject("PartDesign::LinearPattern", "LinearPattern008")
linearpattern9.Originals = [pad15]
linearpattern9.Direction = (doc.getObject("Z_Axis"), [""])
linearpattern9.Mode = "offset"
linearpattern9.Offset = 3.5
linearpattern9.Occurrences = 2
body.Tip = linearpattern9

# Sketch on XZ plane
sketch20 = body.newObject("Sketcher::SketchObject", "Sketch019")
sketch20.AttachmentSupport = (doc.getObject("XZ_Plane"), [""])
sketch20.MapMode = "FlatFace"
sketch20.AttachmentOffset = App.Placement(Vector(0, 0, 3.4), App.Rotation())
sketch20.addGeometry([
    Part.Circle(Vector(0, 5.25, 0), Vector(0, 0, 1), 0.25),
    Part.Circle(Vector(0, 1.75, 0), Vector(0, 0, 1), 0.25),
], False)
sketch20.addConstraint([
    Sketcher.Constraint("Equal", 0, 1),
    Sketcher.Constraint("PointOnObject", 0, 3, -2),
    Sketcher.Constraint("PointOnObject", 1, 3, -2),
    Sketcher.Constraint("Diameter", 0, Q("0.5 mm")),
    Sketcher.Constraint("DistanceY", 1, 3, 0, 3, Q("3.5 mm")),
    Sketcher.Constraint("DistanceY", -1, 1, 0, 3, Q("5.25 mm")),
])
pocket4 = body.newObject("PartDesign::Pocket", "Pocket003")
pocket4.Profile = sketch20
pocket4.Length = 0.5

doc.recompute()
